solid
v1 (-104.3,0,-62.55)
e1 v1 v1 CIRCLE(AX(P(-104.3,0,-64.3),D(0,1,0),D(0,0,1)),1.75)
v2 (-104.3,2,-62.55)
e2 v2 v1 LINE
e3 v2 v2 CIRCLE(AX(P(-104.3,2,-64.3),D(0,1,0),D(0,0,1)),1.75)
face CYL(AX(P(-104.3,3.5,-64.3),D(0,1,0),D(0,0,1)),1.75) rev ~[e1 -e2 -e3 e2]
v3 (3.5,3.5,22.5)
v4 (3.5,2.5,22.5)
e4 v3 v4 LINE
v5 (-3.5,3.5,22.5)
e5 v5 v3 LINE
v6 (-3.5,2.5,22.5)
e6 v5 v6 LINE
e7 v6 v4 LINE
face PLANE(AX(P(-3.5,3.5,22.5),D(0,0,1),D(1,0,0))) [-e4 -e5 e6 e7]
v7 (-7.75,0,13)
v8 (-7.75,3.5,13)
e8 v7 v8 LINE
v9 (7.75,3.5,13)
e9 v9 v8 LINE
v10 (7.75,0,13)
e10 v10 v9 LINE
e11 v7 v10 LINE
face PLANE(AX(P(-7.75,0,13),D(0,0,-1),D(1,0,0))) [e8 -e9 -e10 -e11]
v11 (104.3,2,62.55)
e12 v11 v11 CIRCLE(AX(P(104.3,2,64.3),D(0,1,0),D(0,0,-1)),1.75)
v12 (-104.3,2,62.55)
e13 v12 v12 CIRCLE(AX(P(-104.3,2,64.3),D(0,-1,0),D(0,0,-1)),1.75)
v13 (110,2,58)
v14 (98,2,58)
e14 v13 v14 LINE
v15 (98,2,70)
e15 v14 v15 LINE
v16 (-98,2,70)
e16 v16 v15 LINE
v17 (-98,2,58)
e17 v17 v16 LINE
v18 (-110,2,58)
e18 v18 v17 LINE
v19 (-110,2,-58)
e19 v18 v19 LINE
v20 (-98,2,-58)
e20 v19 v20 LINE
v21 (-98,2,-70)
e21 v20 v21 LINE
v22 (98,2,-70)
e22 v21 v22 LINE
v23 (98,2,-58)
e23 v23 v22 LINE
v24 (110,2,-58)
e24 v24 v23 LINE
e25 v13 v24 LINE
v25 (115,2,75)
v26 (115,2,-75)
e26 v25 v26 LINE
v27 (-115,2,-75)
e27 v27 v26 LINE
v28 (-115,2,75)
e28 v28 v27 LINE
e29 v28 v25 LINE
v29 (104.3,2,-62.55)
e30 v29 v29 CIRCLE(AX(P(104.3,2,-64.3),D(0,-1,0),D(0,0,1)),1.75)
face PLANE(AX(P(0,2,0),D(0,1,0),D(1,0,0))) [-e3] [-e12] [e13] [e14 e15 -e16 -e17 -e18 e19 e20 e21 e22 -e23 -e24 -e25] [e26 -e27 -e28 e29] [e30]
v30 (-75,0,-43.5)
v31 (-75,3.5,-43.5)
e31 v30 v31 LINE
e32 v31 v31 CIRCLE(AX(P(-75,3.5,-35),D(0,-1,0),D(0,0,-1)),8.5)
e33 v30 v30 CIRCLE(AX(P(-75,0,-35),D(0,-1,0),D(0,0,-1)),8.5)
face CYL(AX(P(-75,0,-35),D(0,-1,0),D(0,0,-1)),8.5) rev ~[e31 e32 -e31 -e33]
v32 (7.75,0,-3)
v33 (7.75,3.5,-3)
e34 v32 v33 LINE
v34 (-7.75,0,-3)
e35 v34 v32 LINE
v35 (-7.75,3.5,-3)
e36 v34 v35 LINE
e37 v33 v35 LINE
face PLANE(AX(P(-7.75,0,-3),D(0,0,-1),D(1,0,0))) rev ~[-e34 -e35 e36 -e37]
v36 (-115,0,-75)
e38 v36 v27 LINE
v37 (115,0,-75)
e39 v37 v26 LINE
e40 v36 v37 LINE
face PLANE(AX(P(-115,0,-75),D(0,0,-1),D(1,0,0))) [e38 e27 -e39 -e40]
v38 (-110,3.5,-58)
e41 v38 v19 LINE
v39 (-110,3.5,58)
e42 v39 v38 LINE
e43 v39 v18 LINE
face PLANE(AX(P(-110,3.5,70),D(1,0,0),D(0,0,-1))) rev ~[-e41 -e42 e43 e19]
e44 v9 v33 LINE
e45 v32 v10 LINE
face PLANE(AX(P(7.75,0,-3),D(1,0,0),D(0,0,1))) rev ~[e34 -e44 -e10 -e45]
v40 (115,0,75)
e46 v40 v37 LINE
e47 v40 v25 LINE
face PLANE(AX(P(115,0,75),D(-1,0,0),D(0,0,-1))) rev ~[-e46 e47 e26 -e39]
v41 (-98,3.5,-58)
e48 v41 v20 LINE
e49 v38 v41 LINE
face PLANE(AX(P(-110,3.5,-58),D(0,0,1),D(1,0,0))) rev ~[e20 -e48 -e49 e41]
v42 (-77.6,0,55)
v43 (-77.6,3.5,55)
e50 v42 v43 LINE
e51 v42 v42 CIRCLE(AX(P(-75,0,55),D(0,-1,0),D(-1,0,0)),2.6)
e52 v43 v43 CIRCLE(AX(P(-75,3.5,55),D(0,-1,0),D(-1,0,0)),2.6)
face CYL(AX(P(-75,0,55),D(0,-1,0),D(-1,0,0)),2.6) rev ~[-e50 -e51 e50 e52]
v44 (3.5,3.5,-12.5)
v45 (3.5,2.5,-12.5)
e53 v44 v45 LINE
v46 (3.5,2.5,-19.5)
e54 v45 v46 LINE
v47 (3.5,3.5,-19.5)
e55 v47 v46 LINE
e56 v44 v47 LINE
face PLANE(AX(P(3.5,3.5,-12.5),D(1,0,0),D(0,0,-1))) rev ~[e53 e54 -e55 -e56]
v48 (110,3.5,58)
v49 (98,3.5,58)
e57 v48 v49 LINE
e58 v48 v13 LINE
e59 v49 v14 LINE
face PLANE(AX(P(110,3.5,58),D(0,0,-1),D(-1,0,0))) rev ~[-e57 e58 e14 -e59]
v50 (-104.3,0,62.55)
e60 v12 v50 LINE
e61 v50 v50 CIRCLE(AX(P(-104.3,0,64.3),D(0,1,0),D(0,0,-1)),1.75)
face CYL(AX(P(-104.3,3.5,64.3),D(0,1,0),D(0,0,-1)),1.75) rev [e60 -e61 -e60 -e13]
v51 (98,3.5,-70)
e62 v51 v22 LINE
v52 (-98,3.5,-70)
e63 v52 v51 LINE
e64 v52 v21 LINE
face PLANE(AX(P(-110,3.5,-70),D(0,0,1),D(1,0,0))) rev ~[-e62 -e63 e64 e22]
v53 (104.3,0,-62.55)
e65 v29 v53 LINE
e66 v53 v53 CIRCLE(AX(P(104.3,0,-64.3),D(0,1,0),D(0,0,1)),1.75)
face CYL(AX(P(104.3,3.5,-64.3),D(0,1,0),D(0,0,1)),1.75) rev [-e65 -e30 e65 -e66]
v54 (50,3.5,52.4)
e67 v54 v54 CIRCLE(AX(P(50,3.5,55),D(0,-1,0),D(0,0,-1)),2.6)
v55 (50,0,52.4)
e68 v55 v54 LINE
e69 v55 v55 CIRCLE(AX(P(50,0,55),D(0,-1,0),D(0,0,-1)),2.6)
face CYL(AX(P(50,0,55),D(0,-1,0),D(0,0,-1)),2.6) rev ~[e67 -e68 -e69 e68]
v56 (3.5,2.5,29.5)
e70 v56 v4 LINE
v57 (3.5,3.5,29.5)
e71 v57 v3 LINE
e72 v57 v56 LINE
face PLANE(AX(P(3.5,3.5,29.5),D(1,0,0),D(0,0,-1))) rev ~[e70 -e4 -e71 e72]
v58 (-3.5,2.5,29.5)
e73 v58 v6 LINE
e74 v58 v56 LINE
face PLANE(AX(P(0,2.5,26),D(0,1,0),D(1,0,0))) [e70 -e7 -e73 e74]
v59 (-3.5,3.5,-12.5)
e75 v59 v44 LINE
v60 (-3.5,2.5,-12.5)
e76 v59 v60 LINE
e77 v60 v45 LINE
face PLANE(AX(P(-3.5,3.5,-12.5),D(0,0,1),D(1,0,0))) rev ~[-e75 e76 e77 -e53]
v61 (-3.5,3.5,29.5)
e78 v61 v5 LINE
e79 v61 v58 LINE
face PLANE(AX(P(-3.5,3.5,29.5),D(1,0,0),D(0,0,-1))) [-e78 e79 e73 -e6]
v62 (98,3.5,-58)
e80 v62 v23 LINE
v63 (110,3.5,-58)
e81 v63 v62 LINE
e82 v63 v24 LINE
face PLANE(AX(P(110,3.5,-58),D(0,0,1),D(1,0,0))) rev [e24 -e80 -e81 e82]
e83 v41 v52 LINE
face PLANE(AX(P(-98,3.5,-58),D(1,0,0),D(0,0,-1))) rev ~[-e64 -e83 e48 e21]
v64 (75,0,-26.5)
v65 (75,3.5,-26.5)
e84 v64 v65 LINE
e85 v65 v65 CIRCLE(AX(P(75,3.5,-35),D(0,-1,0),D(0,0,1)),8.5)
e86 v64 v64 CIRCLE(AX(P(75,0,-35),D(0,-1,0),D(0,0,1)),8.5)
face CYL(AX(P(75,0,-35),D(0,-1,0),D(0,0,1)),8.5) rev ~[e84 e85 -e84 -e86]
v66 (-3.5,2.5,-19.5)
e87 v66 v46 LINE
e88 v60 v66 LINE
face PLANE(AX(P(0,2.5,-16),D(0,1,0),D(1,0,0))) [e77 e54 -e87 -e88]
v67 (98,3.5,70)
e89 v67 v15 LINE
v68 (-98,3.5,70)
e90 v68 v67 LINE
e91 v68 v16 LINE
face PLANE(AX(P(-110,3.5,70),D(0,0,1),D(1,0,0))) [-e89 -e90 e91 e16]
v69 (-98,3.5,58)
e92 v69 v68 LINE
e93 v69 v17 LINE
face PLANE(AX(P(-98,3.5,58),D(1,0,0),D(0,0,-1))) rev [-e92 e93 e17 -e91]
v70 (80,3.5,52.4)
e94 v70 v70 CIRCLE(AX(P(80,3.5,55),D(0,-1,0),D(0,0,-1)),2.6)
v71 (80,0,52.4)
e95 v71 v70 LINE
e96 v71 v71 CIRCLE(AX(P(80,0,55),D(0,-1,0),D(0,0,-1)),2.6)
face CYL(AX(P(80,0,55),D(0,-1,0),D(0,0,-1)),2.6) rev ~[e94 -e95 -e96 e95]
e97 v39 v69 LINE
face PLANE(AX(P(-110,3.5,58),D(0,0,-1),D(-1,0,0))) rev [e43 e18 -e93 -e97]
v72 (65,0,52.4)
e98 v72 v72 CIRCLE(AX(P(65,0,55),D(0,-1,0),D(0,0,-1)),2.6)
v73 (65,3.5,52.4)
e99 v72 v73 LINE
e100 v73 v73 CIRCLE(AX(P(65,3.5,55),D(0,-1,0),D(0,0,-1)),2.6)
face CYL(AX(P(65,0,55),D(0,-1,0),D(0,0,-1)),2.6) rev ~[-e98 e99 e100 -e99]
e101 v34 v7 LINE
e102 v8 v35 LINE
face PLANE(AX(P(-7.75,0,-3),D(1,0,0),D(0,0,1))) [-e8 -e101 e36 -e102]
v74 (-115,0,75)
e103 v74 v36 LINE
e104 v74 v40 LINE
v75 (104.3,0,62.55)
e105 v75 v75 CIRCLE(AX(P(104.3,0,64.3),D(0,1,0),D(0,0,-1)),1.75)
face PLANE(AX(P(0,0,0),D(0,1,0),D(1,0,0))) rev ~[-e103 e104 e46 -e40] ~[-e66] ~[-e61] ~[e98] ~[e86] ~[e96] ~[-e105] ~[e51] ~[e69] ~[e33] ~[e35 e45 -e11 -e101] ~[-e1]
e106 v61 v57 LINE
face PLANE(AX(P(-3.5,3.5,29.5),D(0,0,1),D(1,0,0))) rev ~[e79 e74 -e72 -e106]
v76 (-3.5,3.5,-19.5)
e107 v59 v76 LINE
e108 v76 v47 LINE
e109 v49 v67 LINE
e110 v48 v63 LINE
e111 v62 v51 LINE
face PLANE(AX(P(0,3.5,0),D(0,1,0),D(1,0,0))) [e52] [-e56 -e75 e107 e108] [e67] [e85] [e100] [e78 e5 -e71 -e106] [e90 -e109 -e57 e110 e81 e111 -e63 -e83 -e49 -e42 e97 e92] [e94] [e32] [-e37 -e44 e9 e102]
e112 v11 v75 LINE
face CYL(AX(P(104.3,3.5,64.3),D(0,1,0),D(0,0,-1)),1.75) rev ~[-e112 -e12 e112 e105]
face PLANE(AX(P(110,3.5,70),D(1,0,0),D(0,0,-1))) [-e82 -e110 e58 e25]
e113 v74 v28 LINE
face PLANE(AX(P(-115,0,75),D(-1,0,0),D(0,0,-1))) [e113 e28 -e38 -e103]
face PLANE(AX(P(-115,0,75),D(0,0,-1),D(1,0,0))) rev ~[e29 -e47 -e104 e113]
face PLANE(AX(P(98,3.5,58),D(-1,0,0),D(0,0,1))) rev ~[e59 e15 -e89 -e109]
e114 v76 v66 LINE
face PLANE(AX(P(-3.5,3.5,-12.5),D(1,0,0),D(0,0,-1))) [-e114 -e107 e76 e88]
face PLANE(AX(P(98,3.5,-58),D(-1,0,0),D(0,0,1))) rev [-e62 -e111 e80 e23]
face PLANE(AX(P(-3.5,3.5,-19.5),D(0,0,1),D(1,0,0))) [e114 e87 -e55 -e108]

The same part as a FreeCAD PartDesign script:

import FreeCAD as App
import Part
import Sketcher
from FreeCAD import Vector
Q = App.Units.Quantity

doc = App.newDocument("Part")
body = doc.addObject("PartDesign::Body", "Body")

# Sketch on XZ plane
sketch1 = body.newObject("Sketcher::SketchObject", "Sketch")
sketch1.AttachmentSupport = (doc.getObject("XZ_Plane"), [""])
sketch1.MapMode = "FlatFace"
sketch1.addGeometry([
    Part.LineSegment(Vector(-115, -75, 0), Vector(-115, 75, 0)),
    Part.LineSegment(Vector(-115, 75, 0), Vector(115, 75, 0)),
    Part.LineSegment(Vector(115, 75, 0), Vector(115, -75, 0)),
    Part.LineSegment(Vector(115, -75, 0), Vector(-115, -75, 0)),
], False)
sketch1.addConstraint([
    Sketcher.Constraint("Coincident", 0, 2, 1, 1),
    Sketcher.Constraint("Coincident", 1, 2, 2, 1),
    Sketcher.Constraint("Coincident", 2, 2, 3, 1),
    Sketcher.Constraint("Coincident", 3, 2, 0, 1),
    Sketcher.Constraint("Vertical", 0),
    Sketcher.Constraint("Horizontal", 1),
    Sketcher.Constraint("Vertical", 2),
    Sketcher.Constraint("Horizontal", 3),
    Sketcher.Constraint("Symmetric", 0, 2, 2, 2, -1, 1),
    Sketcher.Constraint("DistanceX", 1, 1, 1, 2, Q("230 mm")),
    Sketcher.Constraint("DistanceY", 0, 1, 0, 2, Q("150 mm")),
])
pad1 = body.newObject("PartDesign::Pad", "Pad")
pad1.Profile = sketch1
pad1.Length = 3.5
pad1.Reversed = True

# Sketch on XZ plane
sketch2 = body.newObject("Sketcher::SketchObject", "Sketch001")
sketch2.AttachmentSupport = (doc.getObject("XZ_Plane"), [""])
sketch2.MapMode = "FlatFace"
sketch2.addGeometry([
    Part.Circle(Vector(-75, -35, 0), Vector(0, 0, 1), 8.5),  # 0
    Part.Circle(Vector(75, -35, 0), Vector(0, 0, 1), 8.5),  # 1
    Part.LineSegment(Vector(-7.75, 13, 0), Vector(-7.75, -3, 0)),  # 2
    Part.LineSegment(Vector(-7.75, -3, 0), Vector(7.75, -3, 0)),  # 3
    Part.LineSegment(Vector(7.75, -3, 0), Vector(7.75, 13, 0)),  # 4
    Part.LineSegment(Vector(7.75, 13, 0), Vector(-7.75, 13, 0)),  # 5
], False)
sketch2.addConstraint([
    Sketcher.Constraint("Coincident", 2, 2, 3, 1),
    Sketcher.Constraint("Coincident", 3, 2, 4, 1),
    Sketcher.Constraint("Coincident", 4, 2, 5, 1),
    Sketcher.Constraint("Coincident", 5, 2, 2, 1),
    Sketcher.Constraint("Vertical", 2),
    Sketcher.Constraint("Horizontal", 3),
    Sketcher.Constraint("Vertical", 4),
    Sketcher.Constraint("Horizontal", 5),
    Sketcher.Constraint("Equal", 0, 1),
    Sketcher.Constraint("Symmetric", 0, 3, 1, 3, -2),
    Sketcher.Constraint("Diameter", 0, Q("17 mm")),
    Sketcher.Constraint("DistanceY", 2, 2, 2, 1, Q("16 mm")),
    Sketcher.Constraint("DistanceX", 3, 1, 3, 2, Q("15.5 mm")),
    Sketcher.Constraint("DistanceX", 0, 3, -1, 1, Q("75 mm")),
    Sketcher.Constraint("DistanceY", 0, 3, -1, 1, Q("35 mm")),
    Sketcher.Constraint("DistanceY", 2, 2, -1, 1, Q("3 mm")),
    Sketcher.Constraint("DistanceX", 2, 2, -1, 1, Q("7.75 mm")),
])
pocket1 = body.newObject("PartDesign::Pocket", "Pocket")
pocket1.Profile = sketch2
pocket1.Length = 100

# Sketch on XZ plane
sketch3 = body.newObject("Sketcher::SketchObject", "Sketch002")
sketch3.AttachmentSupport = (doc.getObject("XZ_Plane"), [""])
sketch3.MapMode = "FlatFace"
sketch3.AttachmentOffset = App.Placement(Vector(0, 0, -3.5), App.Rotation())
sketch3.addGeometry([
    Part.LineSegment(Vector(-115, -75, 0), Vector(-115, 75, 0)),  # 0
    Part.LineSegment(Vector(-115, 75, 0), Vector(115, 75, 0)),  # 1
    Part.LineSegment(Vector(115, 75, 0), Vector(115, -75, 0)),  # 2
    Part.LineSegment(Vector(115, -75, 0), Vector(-115, -75, 0)),  # 3
    Part.LineSegment(Vector(110, 70, 0), Vector(-110, 70, 0)),  # 4
    Part.LineSegment(Vector(-110, 70, 0), Vector(-110, -70, 0)),  # 5
    Part.LineSegment(Vector(-110, -70, 0), Vector(110, -70, 0)),  # 6
    Part.LineSegment(Vector(110, -70, 0), Vector(110, 70, 0)),  # 7
], False)
sketch3.addConstraint([
    Sketcher.Constraint("Coincident", 0, 2, 1, 1),
    Sketcher.Constraint("Coincident", 1, 2, 2, 1),
    Sketcher.Constraint("Coincident", 2, 2, 3, 1),
    Sketcher.Constraint("Coincident", 3, 2, 0, 1),
    Sketcher.Constraint("Coincident", 4, 2, 5, 1),
    Sketcher.Constraint("Coincident", 5, 2, 6, 1),
    Sketcher.Constraint("Coincident", 6, 2, 7, 1),
    Sketcher.Constraint("Coincident", 7, 2, 4, 1),
    Sketcher.Constraint("Vertical", 0),
    Sketcher.Constraint("Horizontal", 1),
    Sketcher.Constraint("Vertical", 2),
    Sketcher.Constraint("Horizontal", 3),
    Sketcher.Constraint("Horizontal", 4),
    Sketcher.Constraint("Vertical", 5),
    Sketcher.Constraint("Horizontal", 6),
    Sketcher.Constraint("Vertical", 7),
    Sketcher.Constraint("Symmetric", 0, 2, 2, 2, -1, 1),
    Sketcher.Constraint("Symmetric", 4, 2, 6, 2, -1, 1),
    Sketcher.Constraint("DistanceX", 1, 1, 1, 2, Q("230 mm")),
    Sketcher.Constraint("DistanceX", 4, 2, 4, 1, Q("220 mm")),
    Sketcher.Constraint("DistanceY", 0, 1, 0, 2, Q("150 mm")),
    Sketcher.Constraint("DistanceY", 5, 2, 5, 1, Q("140 mm")),
])
pocket2 = body.newObject("PartDesign::Pocket", "Pocket001")
pocket2.Profile = sketch3
pocket2.Length = 1.5
pocket2.Reversed = True

# Sketch on XZ plane
sketch4 = body.newObject("Sketcher::SketchObject", "Sketch003")
sketch4.AttachmentSupport = (doc.getObject("XZ_Plane"), [""])
sketch4.MapMode = "FlatFace"
sketch4.AttachmentOffset = App.Placement(Vector(0, 0, -3.5), App.Rotation())
sketch4.addGeometry([
    Part.LineSegment(Vector(-110, -70, 0), Vector(-110, -58, 0)),  # 0
    Part.LineSegment(Vector(-110, -58, 0), Vector(-98, -58, 0)),  # 1
    Part.LineSegment(Vector(-98, -58, 0), Vector(-98, -70, 0)),  # 2
    Part.LineSegment(Vector(-98, -70, 0), Vector(-110, -70, 0)),  # 3
    Part.Circle(Vector(-104.3, -64.3, 0), Vector(0, 0, 1), 1.75),  # 4
], False)
sketch4.addConstraint([
    Sketcher.Constraint("Coincident", 0, 2, 1, 1),
    Sketcher.Constraint("Coincident", 1, 2, 2, 1),
    Sketcher.Constraint("Coincident", 2, 2, 3, 1),
    Sketcher.Constraint("Coincident", 3, 2, 0, 1),
    Sketcher.Constraint("Vertical", 0),
    Sketcher.Constraint("Horizontal", 1),
    Sketcher.Constraint("Vertical", 2),
    Sketcher.Constraint("Horizontal", 3),
    Sketcher.Constraint("Equal", 3, 0),
    Sketcher.Constraint("Diameter", 4, Q("3.5 mm")),
    Sketcher.Constraint("DistanceX", 1, 1, 1, 2, Q("12 mm")),
    Sketcher.Constraint("DistanceX", 0, 2, -1, 1, Q("110 mm")),
    Sketcher.Constraint("DistanceY", 0, 2, -1, 1, Q("58 mm")),
    Sketcher.Constraint("DistanceX", 4, 3, -1, 1, Q("104.3 mm")),
    Sketcher.Constraint("DistanceY", 4, 3, -1, 1, Q("64.3 mm")),
])
pocket3 = body.newObject("PartDesign::Pocket", "Pocket002")
pocket3.Profile = sketch4
pocket3.Length = 1.5
pocket3.Reversed = True

# Sketch on XZ plane
sketch5 = body.newObject("Sketcher::SketchObject", "Sketch004")
sketch5.AttachmentSupport = (doc.getObject("XZ_Plane"), [""])
sketch5.MapMode = "FlatFace"
sketch5.AttachmentOffset = App.Placement(Vector(0, 0, -3.5), App.Rotation())
sketch5.addGeometry(Part.Circle(Vector(-104.3, -64.3, 0), Vector(0, 0, 1), 1.75), False)
sketch5.addConstraint([
    Sketcher.Constraint("Diameter", 0, Q("3.5 mm")),
    Sketcher.Constraint("DistanceX", 0, 3, -1, 1, Q("104.3 mm")),
    Sketcher.Constraint("DistanceY", 0, 3, -1, 1, Q("64.3 mm")),
])
pocket4 = body.newObject("PartDesign::Pocket", "Pocket003")
pocket4.Profile = sketch5
pocket4.Length = 10
pocket4.Reversed = True
doc.recompute()

mirrored = body.newObject("PartDesign::Mirrored", "Mirrored")
mirrored.Originals = [pocket3, pocket4]
mirrored.MirrorPlane = (doc.getObject("YZ_Plane"), [""])
body.Tip = mirrored
doc.recompute()

mirrored2 = body.newObject("PartDesign::Mirrored", "Mirrored001")
mirrored2.Originals = [pocket3, pocket4]
mirrored2.MirrorPlane = (doc.getObject("XY_Plane"), [""])
body.Tip = mirrored2

# Sketch on XZ plane
sketch6 = body.newObject("Sketcher::SketchObject", "Sketch005")
sketch6.AttachmentSupport = (doc.getObject("XZ_Plane"), [""])
sketch6.MapMode = "FlatFace"
sketch6.AttachmentOffset = App.Placement(Vector(0, 0, -3.5), App.Rotation())
sketch6.addGeometry([
    Part.LineSegment(Vector(110, 70, 0), Vector(110, 58, 0)),  # 0
    Part.LineSegment(Vector(110, 58, 0), Vector(98, 58, 0)),  # 1
    Part.LineSegment(Vector(98, 58, 0), Vector(98, 70, 0)),  # 2
    Part.LineSegment(Vector(98, 70, 0), Vector(110, 70, 0)),  # 3
    Part.Circle(Vector(104.3, 64.3, 0), Vector(0, 0, 1), 1.75),  # 4
], False)
sketch6.addConstraint([
    Sketcher.Constraint("Coincident", 0, 2, 1, 1),
    Sketcher.Constraint("Coincident", 1, 2, 2, 1),
    Sketcher.Constraint("Coincident", 2, 2, 3, 1),
    Sketcher.Constraint("Coincident", 3, 2, 0, 1),
    Sketcher.Constraint("Vertical", 0),
    Sketcher.Constraint("Horizontal", 1),
    Sketcher.Constraint("Vertical", 2),
    Sketcher.Constraint("Horizontal", 3),
    Sketcher.Constraint("Equal", 3, 0),
    Sketcher.Constraint("Diameter", 4, Q("3.5 mm")),
    Sketcher.Constraint("DistanceX", 1, 2, 1, 1, Q("12 mm")),
    Sketcher.Constraint("DistanceX", -1, 1, 0, 2, Q("110 mm")),
    Sketcher.Constraint("DistanceY", -1, 1, 0, 2, Q("58 mm")),
    Sketcher.Constraint("DistanceX", -1, 1, 4, 3, Q("104.3 mm")),
    Sketcher.Constraint("DistanceY", -1, 1, 4, 3, Q("64.3 mm")),
])
pocket5 = body.newObject("PartDesign::Pocket", "Pocket004")
pocket5.Profile = sketch6
pocket5.Length = 1.5
pocket5.Reversed = True

# Sketch on XZ plane
sketch7 = body.newObject("Sketcher::SketchObject", "Sketch006")
sketch7.AttachmentSupport = (doc.getObject("XZ_Plane"), [""])
sketch7.MapMode = "FlatFace"
sketch7.AttachmentOffset = App.Placement(Vector(0, 0, -3.5), App.Rotation())
sketch7.addGeometry(Part.Circle(Vector(104.3, 64.3, 0), Vector(0, 0, 1), 1.75), False)
sketch7.addConstraint([
    Sketcher.Constraint("Diameter", 0, Q("3.5 mm")),
    Sketcher.Constraint("DistanceX", -1, 1, 0, 3, Q("104.3 mm")),
    Sketcher.Constraint("DistanceY", -1, 1, 0, 3, Q("64.3 mm")),
])
pocket6 = body.newObject("PartDesign::Pocket", "Pocket005")
pocket6.Profile = sketch7
pocket6.Length = 10
pocket6.Reversed = True

# Sketch on XZ plane
sketch8 = body.newObject("Sketcher::SketchObject", "Sketch007")
sketch8.AttachmentSupport = (doc.getObject("XZ_Plane"), [""])
sketch8.MapMode = "FlatFace"
sketch8.addGeometry([
    Part.Circle(Vector(-75, 55, 0), Vector(0, 0, 1), 2.6),
    Part.Circle(Vector(50, 55, 0), Vector(0, 0, 1), 2.6),
    Part.Circle(Vector(65, 55, 0), Vector(0, 0, 1), 2.6),
    Part.Circle(Vector(80, 55, 0), Vector(0, 0, 1), 2.6),
], False)
sketch8.addConstraint([
    Sketcher.Constraint("Equal", 0, 1),
    Sketcher.Constraint("Equal", 1, 2),
    Sketcher.Constraint("Equal", 2, 3),
    Sketcher.Constraint("Horizontal", 0, 3, 1, 3),
    Sketcher.Constraint("Horizontal", 1, 3, 2, 3),
    Sketcher.Constraint("Horizontal", 2, 3, 3, 3),
    Sketcher.Constraint("Diameter", 0, Q("5.2 mm")),
    Sketcher.Constraint("DistanceX", 0, 3, -1, 1, Q("75 mm")),
    Sketcher.Constraint("DistanceY", -1, 1, 0, 3, Q("55 mm")),
    Sketcher.Constraint("DistanceX", -1, 1, 1, 3, Q("50 mm")),
    Sketcher.Constraint("DistanceX", -1, 1, 2, 3, Q("65 mm")),
    Sketcher.Constraint("DistanceX", -1, 1, 3, 3, Q("80 mm")),
])
pocket7 = body.newObject("PartDesign::Pocket", "Pocket006")
pocket7.Profile = sketch8
pocket7.Length = 10

# Sketch on XZ plane
sketch9 = body.newObject("Sketcher::SketchObject", "Sketch008")
sketch9.AttachmentSupport = (doc.getObject("XZ_Plane"), [""])
sketch9.MapMode = "FlatFace"
sketch9.AttachmentOffset = App.Placement(Vector(0, 0, -3.5), App.Rotation())
sketch9.addGeometry([
    Part.LineSegment(Vector(-3.5, -19.5, 0), Vector(-3.5, -12.5, 0)),  # 0
    Part.LineSegment(Vector(-3.5, -12.5, 0), Vector(3.5, -12.5, 0)),  # 1
    Part.LineSegment(Vector(3.5, -12.5, 0), Vector(3.5, -19.5, 0)),  # 2
    Part.LineSegment(Vector(3.5, -19.5, 0), Vector(-3.5, -19.5, 0)),  # 3
    Part.LineSegment(Vector(-3.5, 22.5, 0), Vector(-3.5, 29.5, 0)),  # 4
    Part.LineSegment(Vector(-3.5, 29.5, 0), Vector(3.5, 29.5, 0)),  # 5
    Part.LineSegment(Vector(3.5, 29.5, 0), Vector(3.5, 22.5, 0)),  # 6
    Part.LineSegment(Vector(3.5, 22.5, 0), Vector(-3.5, 22.5, 0)),  # 7
], False)
sketch9.addConstraint([
    Sketcher.Constraint("Coincident", 0, 2, 1, 1),
    Sketcher.Constraint("Coincident", 1, 2, 2, 1),
    Sketcher.Constraint("Coincident", 2, 2, 3, 1),
    Sketcher.Constraint("Coincident", 3, 2, 0, 1),
    Sketcher.Constraint("Coincident", 4, 2, 5, 1),
    Sketcher.Constraint("Coincident", 5, 2, 6, 1),
    Sketcher.Constraint("Coincident", 6, 2, 7, 1),
    Sketcher.Constraint("Coincident", 7, 2, 4, 1),
    Sketcher.Constraint("Vertical", 0),
    Sketcher.Constraint("Horizontal", 1),
    Sketcher.Constraint("Vertical", 2),
    Sketcher.Constraint("Horizontal", 3),
    Sketcher.Constraint("Vertical", 4),
    Sketcher.Constraint("Horizontal", 5),
    Sketcher.Constraint("Vertical", 6),
    Sketcher.Constraint("Horizontal", 7),
    Sketcher.Constraint("Vertical", 3, 2, 4, 2),
    Sketcher.Constraint("Vertical", 2, 2, 5, 2),
    Sketcher.Constraint("Equal", 7, 0),
    Sketcher.Constraint("Equal", 2, 4),
    Sketcher.Constraint("DistanceX", 1, 1, 1, 2, Q("7 mm")),
    Sketcher.Constraint("DistanceY", 0, 2, 4, 2, Q("42 mm")),
    Sketcher.Constraint("DistanceX", 0, 2, -1, 1, Q("3.5 mm")),
    Sketcher.Constraint("DistanceY", 0, 2, -1, 1, Q("12.5 mm")),
])
pocket8 = body.newObject("PartDesign::Pocket", "Pocket007")
pocket8.Profile = sketch9
pocket8.Length = 1
pocket8.Reversed = True

doc.recompute()
